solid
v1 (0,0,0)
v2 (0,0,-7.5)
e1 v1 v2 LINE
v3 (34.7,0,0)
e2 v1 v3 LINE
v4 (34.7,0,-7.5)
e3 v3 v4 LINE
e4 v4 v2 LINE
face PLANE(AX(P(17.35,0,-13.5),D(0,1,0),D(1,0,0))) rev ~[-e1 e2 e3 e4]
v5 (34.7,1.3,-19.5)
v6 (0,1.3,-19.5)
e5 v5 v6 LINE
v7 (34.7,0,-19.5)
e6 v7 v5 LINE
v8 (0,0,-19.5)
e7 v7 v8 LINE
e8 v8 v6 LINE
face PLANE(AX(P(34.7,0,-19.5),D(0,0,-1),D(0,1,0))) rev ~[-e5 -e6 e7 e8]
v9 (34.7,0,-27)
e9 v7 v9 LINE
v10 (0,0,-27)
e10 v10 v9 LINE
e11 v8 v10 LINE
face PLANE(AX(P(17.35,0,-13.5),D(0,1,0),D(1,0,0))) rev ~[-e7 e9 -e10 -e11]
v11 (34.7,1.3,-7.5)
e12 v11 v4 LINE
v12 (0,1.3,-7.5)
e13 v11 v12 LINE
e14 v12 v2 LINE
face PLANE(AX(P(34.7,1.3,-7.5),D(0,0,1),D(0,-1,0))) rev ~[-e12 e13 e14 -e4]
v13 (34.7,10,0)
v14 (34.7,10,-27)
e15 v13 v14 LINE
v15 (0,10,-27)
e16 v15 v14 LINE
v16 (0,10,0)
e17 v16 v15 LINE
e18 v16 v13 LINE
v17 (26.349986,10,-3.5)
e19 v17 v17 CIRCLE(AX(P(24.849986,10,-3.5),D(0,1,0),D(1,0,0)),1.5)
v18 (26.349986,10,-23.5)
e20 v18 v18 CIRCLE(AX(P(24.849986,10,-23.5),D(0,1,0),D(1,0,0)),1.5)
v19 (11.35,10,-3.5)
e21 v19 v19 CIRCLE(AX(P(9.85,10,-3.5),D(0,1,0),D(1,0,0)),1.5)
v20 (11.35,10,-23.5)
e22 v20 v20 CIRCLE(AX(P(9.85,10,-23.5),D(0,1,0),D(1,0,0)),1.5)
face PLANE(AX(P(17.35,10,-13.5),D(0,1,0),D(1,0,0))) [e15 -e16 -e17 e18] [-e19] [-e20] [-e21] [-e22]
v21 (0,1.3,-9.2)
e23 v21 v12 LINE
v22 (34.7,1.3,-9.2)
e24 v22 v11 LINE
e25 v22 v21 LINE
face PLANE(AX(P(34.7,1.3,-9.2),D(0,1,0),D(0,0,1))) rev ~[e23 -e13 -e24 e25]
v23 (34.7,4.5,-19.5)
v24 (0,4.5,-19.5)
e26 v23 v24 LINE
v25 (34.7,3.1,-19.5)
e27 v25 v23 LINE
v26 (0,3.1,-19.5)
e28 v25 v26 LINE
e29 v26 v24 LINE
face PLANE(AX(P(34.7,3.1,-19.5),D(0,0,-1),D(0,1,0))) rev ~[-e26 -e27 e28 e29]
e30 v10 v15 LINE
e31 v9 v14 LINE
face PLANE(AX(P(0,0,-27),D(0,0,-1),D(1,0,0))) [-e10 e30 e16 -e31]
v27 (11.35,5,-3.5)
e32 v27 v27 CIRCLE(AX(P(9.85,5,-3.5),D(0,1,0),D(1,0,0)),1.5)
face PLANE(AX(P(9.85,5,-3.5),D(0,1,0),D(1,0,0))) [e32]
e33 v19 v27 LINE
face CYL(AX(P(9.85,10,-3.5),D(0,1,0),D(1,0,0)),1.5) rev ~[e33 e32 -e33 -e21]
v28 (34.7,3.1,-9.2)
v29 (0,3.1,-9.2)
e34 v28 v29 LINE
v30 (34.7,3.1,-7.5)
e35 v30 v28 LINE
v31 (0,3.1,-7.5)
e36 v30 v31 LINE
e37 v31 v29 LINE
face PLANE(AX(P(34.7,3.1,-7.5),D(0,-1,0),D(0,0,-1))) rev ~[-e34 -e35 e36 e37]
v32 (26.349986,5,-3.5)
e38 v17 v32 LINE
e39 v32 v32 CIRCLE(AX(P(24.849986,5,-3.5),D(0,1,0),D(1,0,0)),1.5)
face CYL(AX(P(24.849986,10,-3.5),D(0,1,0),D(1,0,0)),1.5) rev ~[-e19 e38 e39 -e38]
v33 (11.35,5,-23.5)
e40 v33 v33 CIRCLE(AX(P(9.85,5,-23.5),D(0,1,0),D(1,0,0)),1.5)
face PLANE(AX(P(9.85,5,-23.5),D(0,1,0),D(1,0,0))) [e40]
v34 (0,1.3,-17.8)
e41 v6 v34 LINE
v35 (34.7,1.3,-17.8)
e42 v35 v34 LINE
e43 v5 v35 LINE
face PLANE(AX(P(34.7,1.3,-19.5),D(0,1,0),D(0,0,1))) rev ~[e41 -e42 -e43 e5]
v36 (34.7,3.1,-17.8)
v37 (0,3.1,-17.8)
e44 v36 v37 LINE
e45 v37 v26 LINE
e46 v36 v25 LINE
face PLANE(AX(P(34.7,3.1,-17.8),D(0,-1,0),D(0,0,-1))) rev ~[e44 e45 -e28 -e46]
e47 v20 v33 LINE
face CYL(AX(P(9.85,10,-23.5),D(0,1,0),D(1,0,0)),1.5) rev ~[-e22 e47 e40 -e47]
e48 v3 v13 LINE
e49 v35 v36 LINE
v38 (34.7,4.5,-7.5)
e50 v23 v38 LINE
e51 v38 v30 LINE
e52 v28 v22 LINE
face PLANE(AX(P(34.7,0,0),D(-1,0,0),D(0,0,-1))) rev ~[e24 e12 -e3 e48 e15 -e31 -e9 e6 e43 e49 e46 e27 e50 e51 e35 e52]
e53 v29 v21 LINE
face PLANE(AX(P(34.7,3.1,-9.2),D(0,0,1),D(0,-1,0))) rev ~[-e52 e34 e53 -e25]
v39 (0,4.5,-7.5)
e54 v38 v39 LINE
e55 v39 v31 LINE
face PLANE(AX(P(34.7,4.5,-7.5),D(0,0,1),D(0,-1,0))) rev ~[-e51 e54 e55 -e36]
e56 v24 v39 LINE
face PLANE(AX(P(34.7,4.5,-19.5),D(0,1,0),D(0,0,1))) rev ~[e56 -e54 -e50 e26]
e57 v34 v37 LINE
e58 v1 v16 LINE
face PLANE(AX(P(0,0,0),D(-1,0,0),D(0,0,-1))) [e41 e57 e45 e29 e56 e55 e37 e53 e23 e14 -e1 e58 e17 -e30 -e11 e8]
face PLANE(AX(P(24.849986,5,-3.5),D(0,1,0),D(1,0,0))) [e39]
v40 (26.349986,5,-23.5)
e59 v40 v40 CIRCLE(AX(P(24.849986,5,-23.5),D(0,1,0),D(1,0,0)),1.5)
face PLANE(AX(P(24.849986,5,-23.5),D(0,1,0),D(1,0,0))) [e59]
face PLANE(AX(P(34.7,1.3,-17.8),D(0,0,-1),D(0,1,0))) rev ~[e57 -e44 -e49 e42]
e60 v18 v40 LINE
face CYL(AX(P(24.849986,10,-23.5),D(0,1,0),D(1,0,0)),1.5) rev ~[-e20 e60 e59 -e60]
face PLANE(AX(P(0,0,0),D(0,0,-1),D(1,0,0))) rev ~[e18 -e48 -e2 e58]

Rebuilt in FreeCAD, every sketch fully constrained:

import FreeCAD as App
import Part
import Sketcher
Q = App.Units.Quantity


def add_polygon(sketch, points):
    """Adds a closed chain of lines whose ends are joined by coincident constraints."""
    first, n = sketch.GeometryCount, len(points)
    for a, b in zip(points, points[1:] + points[:1]):
        sketch.addGeometry(Part.LineSegment(App.Vector(*a, 0), App.Vector(*b, 0)), False)
    for i in range(n):
        sketch.addConstraint(Sketcher.Constraint("Coincident", first + i, 2, first + (i + 1) % n, 1))

doc = App.newDocument("Part")
body = doc.addObject("PartDesign::Body", "Body")

sketch1 = body.newObject("Sketcher::SketchObject", "Sketch")
sketch1.AttachmentSupport = (doc.getObject("XZ_Plane"), [""])
sketch1.MapMode = "FlatFace"
add_polygon(sketch1, [(0, -27), (0, 0), (34.7, 0), (34.7, -27)])
sketch1.addConstraint(Sketcher.Constraint("Vertical", 0))
sketch1.addConstraint(Sketcher.Constraint("Horizontal", 1))
sketch1.addConstraint(Sketcher.Constraint("Vertical", 2))
sketch1.addConstraint(Sketcher.Constraint("Horizontal", 3))
sketch1.addConstraint(Sketcher.Constraint("Coincident", 0, 2, -1, 1))
sketch1.addConstraint(Sketcher.Constraint("DistanceY", 0, 1, 0, 2, Q("27 mm")))
sketch1.addConstraint(Sketcher.Constraint("DistanceX", 1, 1, 1, 2, Q("34.7 mm")))
pad1 = body.newObject("PartDesign::Pad", "Pad")
pad1.Profile = sketch1
pad1.Length = 10
pad1.Reversed = True

sketch2 = body.newObject("Sketcher::SketchObject", "Sketch001")
sketch2.AttachmentSupport = (doc.getObject("XZ_Plane"), [""])
sketch2.MapMode = "FlatFace"
sketch2.AttachmentOffset = App.Placement(App.Vector(0, 0, -10), App.Rotation())
sketch2.addGeometry(Part.Circle(App.Vector(9.85, -23.5, 0), App.Vector(0, 0, 1), 1.5), False)
sketch2.addGeometry(Part.Circle(App.Vector(24.849986, -23.5, 0), App.Vector(0, 0, 1), 1.5), False)
sketch2.addGeometry(Part.Circle(App.Vector(9.85, -3.5, 0), App.Vector(0, 0, 1), 1.5), False)
sketch2.addGeometry(Part.Circle(App.Vector(24.849986, -3.5, 0), App.Vector(0, 0, 1), 1.5), False)
sketch2.addConstraint(Sketcher.Constraint("Equal", 0, 1))
sketch2.addConstraint(Sketcher.Constraint("Equal", 1, 2))
sketch2.addConstraint(Sketcher.Constraint("Equal", 2, 3))
sketch2.addConstraint(Sketcher.Constraint("Horizontal", 0, 3, 1, 3))
sketch2.addConstraint(Sketcher.Constraint("Horizontal", 2, 3, 3, 3))
sketch2.addConstraint(Sketcher.Constraint("Vertical", 0, 3, 2, 3))
sketch2.addConstraint(Sketcher.Constraint("Vertical", 1, 3, 3, 3))
sketch2.addConstraint(Sketcher.Constraint("Diameter", 0, Q("3 mm")))
sketch2.addConstraint(Sketcher.Constraint("DistanceY", 0, 3, 2, 3, Q("20 mm")))
sketch2.addConstraint(Sketcher.Constraint("DistanceY", 0, 3, -1, 1, Q("23.5 mm")))
sketch2.addConstraint(Sketcher.Constraint("DistanceX", -1, 1, 0, 3, Q("9.85 mm")))
sketch2.addConstraint(Sketcher.Constraint("DistanceX", -1, 1, 1, 3, Q("24.849986 mm")))
pocket1 = body.newObject("PartDesign::Pocket", "Pocket")
pocket1.Profile = sketch2
pocket1.Length = 5
pocket1.Reversed = True

sketch3 = body.newObject("Sketcher::SketchObject", "Sketch002")
sketch3.AttachmentSupport = (doc.getObject("YZ_Plane"), [""])
sketch3.MapMode = "FlatFace"
sketch3.AttachmentOffset = App.Placement(App.Vector(0, 0, 34.7), App.Rotation())
add_polygon(sketch3, [(0, -7.5), (0, -19.5), (1.3, -19.5), (1.3, -17.8), (3.1, -17.8), (3.1, -19.5), (4.5, -19.5), (4.5, -7.5), (3.1, -7.5), (3.1, -9.2), (1.3, -9.2), (1.3, -7.5)])
sketch3.addConstraint(Sketcher.Constraint("Vertical", 0))
sketch3.addConstraint(Sketcher.Constraint("Horizontal", 1))
sketch3.addConstraint(Sketcher.Constraint("Vertical", 2))
sketch3.addConstraint(Sketcher.Constraint("Horizontal", 3))
sketch3.addConstraint(Sketcher.Constraint("Vertical", 4))
sketch3.addConstraint(Sketcher.Constraint("Horizontal", 5))
sketch3.addConstraint(Sketcher.Constraint("Vertical", 6))
sketch3.addConstraint(Sketcher.Constraint("Horizontal", 7))
sketch3.addConstraint(Sketcher.Constraint("Vertical", 8))
sketch3.addConstraint(Sketcher.Constraint("Horizontal", 9))
sketch3.addConstraint(Sketcher.Constraint("Vertical", 10))
sketch3.addConstraint(Sketcher.Constraint("Horizontal", 11))
sketch3.addConstraint(Sketcher.Constraint("PointOnObject", 0, 2, -2))
sketch3.addConstraint(Sketcher.Constraint("Horizontal", 1, 2, 4, 2))
sketch3.addConstraint(Sketcher.Constraint("Horizontal", 7, 2, 10, 2))
sketch3.addConstraint(Sketcher.Constraint("Vertical", 4, 2, 7, 2))
sketch3.addConstraint(Sketcher.Constraint("Vertical", 2, 2, 9, 2))
sketch3.addConstraint(Sketcher.Constraint("Equal", 4, 8))
sketch3.addConstraint(Sketcher.Constraint("DistanceY", 0, 2, 0, 1, Q("12 mm")))
sketch3.addConstraint(Sketcher.Constraint("DistanceX", 1, 1, 1, 2, Q("1.3 mm")))
sketch3.addConstraint(Sketcher.Constraint("DistanceX", 3, 1, 3, 2, Q("1.8 mm")))
sketch3.addConstraint(Sketcher.Constraint("DistanceX", 5, 1, 5, 2, Q("1.4 mm")))
sketch3.addConstraint(Sketcher.Constraint("DistanceY", 2, 1, 2, 2, Q("1.7 mm")))
sketch3.addConstraint(Sketcher.Constraint("DistanceY", 0, 2, -1, 1, Q("19.5 mm")))
pocket2 = body.newObject("PartDesign::Pocket", "Pocket001")
pocket2.Profile = sketch3
pocket2.Length = 34.7

doc.recompute()
